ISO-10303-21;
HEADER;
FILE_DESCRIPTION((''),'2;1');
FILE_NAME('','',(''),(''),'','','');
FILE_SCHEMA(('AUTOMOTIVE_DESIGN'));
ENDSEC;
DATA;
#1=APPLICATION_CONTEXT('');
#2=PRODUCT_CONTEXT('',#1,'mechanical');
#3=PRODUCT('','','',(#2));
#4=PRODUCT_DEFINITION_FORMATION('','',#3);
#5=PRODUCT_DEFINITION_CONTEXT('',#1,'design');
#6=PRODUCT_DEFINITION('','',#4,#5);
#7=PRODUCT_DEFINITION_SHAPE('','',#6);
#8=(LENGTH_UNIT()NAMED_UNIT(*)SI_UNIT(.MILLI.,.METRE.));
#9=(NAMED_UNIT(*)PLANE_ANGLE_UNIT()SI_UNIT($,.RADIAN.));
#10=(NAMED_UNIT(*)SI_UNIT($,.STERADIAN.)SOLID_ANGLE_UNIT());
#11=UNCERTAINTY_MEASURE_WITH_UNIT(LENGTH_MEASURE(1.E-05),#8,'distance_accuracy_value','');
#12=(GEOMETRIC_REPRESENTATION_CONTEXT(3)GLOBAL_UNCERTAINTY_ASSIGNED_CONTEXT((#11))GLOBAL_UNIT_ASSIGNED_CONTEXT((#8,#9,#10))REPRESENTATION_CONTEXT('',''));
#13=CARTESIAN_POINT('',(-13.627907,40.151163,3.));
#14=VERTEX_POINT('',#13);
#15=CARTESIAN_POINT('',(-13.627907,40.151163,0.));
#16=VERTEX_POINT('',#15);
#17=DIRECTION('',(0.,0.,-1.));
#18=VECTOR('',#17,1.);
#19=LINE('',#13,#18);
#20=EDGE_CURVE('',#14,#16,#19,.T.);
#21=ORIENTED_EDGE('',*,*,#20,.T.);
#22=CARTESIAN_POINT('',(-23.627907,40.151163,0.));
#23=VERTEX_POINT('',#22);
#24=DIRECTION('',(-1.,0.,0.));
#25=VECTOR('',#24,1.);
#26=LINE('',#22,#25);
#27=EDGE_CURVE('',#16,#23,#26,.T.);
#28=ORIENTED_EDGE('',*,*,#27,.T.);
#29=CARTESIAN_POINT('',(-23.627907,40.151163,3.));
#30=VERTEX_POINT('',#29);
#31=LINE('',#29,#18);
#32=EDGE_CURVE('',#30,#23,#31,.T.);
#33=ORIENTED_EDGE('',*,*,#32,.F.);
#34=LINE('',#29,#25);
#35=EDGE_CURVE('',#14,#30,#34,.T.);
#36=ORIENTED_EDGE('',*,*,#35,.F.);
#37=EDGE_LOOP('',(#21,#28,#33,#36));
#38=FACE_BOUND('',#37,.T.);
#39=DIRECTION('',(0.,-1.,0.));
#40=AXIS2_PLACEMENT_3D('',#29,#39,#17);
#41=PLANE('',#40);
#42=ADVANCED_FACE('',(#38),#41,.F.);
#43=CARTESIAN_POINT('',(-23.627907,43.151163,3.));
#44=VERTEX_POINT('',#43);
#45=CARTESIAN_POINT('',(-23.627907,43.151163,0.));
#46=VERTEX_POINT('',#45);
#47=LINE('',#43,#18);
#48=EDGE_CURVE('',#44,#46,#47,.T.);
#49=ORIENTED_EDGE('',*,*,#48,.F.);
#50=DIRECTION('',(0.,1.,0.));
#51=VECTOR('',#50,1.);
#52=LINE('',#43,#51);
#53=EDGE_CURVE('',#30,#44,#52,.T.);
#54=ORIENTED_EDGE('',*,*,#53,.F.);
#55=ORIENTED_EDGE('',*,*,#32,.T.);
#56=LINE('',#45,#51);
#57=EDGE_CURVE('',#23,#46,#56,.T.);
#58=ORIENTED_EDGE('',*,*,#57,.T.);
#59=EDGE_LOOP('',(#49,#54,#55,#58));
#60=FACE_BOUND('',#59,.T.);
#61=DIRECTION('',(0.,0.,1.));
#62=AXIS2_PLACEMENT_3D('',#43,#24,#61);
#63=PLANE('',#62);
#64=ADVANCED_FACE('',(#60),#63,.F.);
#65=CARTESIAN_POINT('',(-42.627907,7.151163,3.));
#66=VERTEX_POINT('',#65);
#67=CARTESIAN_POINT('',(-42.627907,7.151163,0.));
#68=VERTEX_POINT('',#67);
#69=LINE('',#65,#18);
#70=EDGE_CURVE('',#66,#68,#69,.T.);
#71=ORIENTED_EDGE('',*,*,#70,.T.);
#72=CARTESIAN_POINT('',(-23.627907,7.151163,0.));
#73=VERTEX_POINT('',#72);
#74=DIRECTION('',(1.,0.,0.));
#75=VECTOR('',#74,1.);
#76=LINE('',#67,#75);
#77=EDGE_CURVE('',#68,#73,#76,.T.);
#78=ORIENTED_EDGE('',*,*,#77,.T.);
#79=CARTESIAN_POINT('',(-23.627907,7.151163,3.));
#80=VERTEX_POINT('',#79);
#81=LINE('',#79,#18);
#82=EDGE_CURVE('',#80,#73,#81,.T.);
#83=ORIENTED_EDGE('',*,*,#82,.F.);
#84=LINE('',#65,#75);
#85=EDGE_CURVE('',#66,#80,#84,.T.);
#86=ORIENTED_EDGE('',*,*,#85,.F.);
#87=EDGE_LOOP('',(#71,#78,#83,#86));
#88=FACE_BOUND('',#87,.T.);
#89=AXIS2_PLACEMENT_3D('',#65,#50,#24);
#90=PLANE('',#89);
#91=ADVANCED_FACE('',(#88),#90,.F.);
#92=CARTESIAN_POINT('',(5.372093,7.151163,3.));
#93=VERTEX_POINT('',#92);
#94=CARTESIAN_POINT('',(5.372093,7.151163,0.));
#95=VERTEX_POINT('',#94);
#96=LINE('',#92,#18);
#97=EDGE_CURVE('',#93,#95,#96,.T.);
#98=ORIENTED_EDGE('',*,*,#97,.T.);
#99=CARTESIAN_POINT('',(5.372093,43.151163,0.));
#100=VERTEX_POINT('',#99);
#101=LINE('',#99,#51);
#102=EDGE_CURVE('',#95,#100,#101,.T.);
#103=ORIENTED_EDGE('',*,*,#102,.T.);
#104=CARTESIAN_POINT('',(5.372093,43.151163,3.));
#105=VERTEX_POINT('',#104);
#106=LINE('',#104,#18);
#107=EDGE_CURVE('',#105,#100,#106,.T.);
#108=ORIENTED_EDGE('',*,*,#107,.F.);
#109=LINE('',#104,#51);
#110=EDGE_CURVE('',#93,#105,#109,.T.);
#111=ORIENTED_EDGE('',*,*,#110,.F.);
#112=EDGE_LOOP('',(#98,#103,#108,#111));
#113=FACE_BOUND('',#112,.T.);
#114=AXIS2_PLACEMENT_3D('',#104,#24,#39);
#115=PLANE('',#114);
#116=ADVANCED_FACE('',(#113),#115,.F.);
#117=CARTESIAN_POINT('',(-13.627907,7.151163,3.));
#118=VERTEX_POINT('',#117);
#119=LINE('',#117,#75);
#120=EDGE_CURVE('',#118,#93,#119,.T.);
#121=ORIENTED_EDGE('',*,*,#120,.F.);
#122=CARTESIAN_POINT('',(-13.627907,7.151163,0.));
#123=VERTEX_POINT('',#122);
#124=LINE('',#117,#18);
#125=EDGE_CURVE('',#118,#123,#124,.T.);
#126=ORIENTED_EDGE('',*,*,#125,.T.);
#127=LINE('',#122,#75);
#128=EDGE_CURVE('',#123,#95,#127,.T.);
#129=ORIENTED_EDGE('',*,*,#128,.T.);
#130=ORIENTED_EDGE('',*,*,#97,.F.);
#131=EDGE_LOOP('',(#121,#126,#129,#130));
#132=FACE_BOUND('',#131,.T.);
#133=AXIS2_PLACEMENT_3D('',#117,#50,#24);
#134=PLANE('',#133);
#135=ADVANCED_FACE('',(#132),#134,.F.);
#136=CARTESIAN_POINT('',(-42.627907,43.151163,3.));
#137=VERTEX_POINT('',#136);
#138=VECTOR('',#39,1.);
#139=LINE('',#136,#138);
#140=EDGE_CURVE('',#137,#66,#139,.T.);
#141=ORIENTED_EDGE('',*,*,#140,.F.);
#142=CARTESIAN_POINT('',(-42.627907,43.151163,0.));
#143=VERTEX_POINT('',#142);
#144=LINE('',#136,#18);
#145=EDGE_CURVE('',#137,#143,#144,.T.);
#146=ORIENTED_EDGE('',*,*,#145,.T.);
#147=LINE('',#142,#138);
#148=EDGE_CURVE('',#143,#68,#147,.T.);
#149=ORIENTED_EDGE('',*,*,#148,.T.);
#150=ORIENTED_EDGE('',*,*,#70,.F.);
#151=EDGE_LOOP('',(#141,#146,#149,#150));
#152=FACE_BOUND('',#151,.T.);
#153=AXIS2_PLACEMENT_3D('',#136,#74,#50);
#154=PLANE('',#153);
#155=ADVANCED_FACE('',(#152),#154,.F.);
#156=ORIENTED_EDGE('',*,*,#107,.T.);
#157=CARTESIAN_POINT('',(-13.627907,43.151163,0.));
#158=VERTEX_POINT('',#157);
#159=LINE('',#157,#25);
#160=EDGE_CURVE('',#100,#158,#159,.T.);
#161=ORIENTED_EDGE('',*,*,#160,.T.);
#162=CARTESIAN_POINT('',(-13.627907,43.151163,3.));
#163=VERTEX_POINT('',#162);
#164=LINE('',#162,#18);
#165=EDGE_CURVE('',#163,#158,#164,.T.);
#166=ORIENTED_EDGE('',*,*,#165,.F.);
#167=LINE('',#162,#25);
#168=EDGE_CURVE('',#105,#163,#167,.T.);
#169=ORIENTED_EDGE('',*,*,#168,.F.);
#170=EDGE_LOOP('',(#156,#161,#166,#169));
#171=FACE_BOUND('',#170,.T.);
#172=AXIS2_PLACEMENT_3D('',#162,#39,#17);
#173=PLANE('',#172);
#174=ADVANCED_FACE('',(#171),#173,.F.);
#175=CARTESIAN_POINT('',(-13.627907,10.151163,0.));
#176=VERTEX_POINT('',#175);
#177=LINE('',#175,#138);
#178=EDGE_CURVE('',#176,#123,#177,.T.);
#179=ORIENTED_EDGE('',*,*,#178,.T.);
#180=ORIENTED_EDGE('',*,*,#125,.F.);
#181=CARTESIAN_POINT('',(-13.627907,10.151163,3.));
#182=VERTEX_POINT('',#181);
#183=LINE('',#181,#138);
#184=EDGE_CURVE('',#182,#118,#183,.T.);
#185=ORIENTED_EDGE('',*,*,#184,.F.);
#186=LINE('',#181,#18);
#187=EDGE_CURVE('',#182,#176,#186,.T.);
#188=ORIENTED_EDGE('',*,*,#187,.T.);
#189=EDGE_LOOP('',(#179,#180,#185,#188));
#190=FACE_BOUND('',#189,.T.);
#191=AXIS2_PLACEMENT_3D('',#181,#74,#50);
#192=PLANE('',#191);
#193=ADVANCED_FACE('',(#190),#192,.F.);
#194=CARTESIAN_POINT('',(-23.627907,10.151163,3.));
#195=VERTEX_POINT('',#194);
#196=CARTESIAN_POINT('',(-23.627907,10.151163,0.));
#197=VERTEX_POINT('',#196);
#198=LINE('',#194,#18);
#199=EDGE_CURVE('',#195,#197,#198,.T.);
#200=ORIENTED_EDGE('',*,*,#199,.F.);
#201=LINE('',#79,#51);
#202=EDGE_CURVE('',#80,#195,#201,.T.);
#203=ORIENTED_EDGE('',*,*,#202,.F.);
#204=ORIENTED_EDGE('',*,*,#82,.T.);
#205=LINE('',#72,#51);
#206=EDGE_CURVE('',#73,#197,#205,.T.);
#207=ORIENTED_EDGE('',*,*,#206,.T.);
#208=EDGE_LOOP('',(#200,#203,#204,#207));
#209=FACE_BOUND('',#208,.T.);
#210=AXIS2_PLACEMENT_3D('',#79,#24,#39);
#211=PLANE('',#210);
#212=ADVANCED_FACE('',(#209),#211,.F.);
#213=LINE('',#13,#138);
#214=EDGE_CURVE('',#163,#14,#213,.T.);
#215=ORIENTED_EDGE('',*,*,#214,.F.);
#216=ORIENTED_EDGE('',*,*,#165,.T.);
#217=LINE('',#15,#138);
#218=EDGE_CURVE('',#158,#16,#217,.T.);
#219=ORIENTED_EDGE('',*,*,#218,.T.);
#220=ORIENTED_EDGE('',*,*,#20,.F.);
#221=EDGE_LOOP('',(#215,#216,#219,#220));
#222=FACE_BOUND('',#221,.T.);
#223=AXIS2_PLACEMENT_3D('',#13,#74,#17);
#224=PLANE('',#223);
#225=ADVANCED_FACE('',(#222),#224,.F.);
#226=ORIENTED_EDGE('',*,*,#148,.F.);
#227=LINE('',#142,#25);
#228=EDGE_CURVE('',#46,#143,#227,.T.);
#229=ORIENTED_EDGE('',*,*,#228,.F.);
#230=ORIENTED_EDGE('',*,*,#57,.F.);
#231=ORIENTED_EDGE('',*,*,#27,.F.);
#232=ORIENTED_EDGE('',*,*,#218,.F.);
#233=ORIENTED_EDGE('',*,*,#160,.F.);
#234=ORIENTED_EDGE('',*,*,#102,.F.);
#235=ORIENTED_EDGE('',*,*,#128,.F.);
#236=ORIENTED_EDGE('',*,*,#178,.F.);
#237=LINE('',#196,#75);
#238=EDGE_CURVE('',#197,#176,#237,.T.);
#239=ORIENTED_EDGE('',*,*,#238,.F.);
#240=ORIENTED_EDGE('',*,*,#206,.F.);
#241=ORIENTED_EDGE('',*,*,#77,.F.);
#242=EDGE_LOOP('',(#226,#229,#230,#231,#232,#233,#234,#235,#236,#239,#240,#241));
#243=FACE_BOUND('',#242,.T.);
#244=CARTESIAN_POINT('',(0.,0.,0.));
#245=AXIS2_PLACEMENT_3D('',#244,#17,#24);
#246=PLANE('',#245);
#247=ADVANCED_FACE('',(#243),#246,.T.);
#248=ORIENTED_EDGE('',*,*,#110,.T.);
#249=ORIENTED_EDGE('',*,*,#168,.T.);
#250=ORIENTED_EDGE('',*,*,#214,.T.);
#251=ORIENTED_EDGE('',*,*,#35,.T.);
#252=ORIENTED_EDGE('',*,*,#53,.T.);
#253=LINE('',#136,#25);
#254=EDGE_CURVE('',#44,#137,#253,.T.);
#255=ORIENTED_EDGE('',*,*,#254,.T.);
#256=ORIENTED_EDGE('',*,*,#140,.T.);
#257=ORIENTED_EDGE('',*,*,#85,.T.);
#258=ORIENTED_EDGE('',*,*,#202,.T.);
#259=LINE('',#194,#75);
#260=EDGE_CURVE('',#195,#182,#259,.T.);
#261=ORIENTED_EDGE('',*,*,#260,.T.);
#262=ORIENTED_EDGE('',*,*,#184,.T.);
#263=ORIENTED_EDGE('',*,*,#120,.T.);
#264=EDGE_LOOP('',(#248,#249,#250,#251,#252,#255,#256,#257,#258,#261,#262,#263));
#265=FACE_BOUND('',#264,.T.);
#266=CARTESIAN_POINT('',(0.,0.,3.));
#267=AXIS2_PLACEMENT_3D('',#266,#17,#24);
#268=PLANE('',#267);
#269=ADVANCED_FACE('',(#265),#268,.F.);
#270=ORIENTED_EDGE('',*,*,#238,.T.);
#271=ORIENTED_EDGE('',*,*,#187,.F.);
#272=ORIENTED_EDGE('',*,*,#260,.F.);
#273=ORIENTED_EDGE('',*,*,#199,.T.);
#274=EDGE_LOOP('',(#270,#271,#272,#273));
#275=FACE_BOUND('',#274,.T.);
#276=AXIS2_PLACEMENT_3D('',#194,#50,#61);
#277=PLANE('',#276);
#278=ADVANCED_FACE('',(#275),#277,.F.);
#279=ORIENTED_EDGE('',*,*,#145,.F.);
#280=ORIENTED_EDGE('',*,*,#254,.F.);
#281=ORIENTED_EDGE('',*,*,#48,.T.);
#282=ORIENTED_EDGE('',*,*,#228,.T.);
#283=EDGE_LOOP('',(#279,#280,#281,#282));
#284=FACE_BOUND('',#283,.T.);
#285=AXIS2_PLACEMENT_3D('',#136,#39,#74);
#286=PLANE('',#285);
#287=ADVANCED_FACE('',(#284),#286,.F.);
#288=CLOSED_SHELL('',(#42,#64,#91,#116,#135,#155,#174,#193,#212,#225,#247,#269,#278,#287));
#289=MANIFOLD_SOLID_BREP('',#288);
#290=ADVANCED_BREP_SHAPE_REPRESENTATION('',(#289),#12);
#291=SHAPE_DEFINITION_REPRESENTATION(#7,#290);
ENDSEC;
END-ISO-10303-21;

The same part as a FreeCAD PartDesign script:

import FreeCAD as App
import Part
import Sketcher
from FreeCAD import Vector

doc = App.newDocument("Part")
body = doc.addObject("PartDesign::Body", "Body")

sketch1 = body.newObject("Sketcher::SketchObject", "Sketch")
sketch1.AttachmentSupport = (doc.getObject("XY_Plane"), [""])
sketch1.MapMode = "FlatFace"
sketch1.addGeometry([
    Part.LineSegment(Vector(-23.6, 40.2, 0), Vector(-23.6, 43.2, 0)),
    Part.LineSegment(Vector(-23.6, 43.2, 0), Vector(-42.6, 43.2, 0)),
    Part.LineSegment(Vector(-42.6, 43.2, 0), Vector(-42.6, 7.2, 0)),
    Part.LineSegment(Vector(-42.6, 7.2, 0), Vector(-23.6, 7.2, 0)),
    Part.LineSegment(Vector(-23.6, 7.2, 0), Vector(-23.6, 10.2, 0)),
    Part.LineSegment(Vector(-23.6, 10.2, 0), Vector(-13.6, 10.2, 0)),
    Part.LineSegment(Vector(-13.6, 10.2, 0), Vector(-13.6, 7.2, 0)),
    Part.LineSegment(Vector(-13.6, 7.2, 0), Vector(5.4, 7.2, 0)),
    Part.LineSegment(Vector(5.4, 7.2, 0), Vector(5.4, 43.2, 0)),
    Part.LineSegment(Vector(5.4, 43.2, 0), Vector(-13.6, 43.2, 0)),
    Part.LineSegment(Vector(-13.6, 43.2, 0), Vector(-13.6, 40.2, 0)),
    Part.LineSegment(Vector(-13.6, 40.2, 0), Vector(-23.6, 40.2, 0)),
], False)
sketch1.addConstraint([
    Sketcher.Constraint("Coincident", 0, 2, 1, 1),
    Sketcher.Constraint("Coincident", 1, 2, 2, 1),
    Sketcher.Constraint("Coincident", 2, 2, 3, 1),
    Sketcher.Constraint("Coincident", 3, 2, 4, 1),
    Sketcher.Constraint("Coincident", 4, 2, 5, 1),
    Sketcher.Constraint("Coincident", 5, 2, 6, 1),
    Sketcher.Constraint("Coincident", 6, 2, 7, 1),
    Sketcher.Constraint("Coincident", 7, 2, 8, 1),
    Sketcher.Constraint("Coincident", 8, 2, 9, 1),
    Sketcher.Constraint("Coincident", 9, 2, 10, 1),
    Sketcher.Constraint("Coincident", 10, 2, 11, 1),
    Sketcher.Constraint("Coincident", 11, 2, 0, 1),
    Sketcher.Constraint("Vertical", 0),
    Sketcher.Constraint("Horizontal", 1),
    Sketcher.Constraint("Vertical", 2),
    Sketcher.Constraint("Horizontal", 3),
    Sketcher.Constraint("Vertical", 4),
    Sketcher.Constraint("Horizontal", 5),
    Sketcher.Constraint("Vertical", 6),
    Sketcher.Constraint("Horizontal", 7),
    Sketcher.Constraint("Vertical", 8),
    Sketcher.Constraint("Horizontal", 9),
    Sketcher.Constraint("Vertical", 10),
    Sketcher.Constraint("Horizontal", 11),
    Sketcher.Constraint("Horizontal", 3, 2, 6, 2),
    Sketcher.Constraint("Horizontal", 1, 2, 8, 2),
    Sketcher.Constraint("Vertical", 0, 2, 3, 2),
    Sketcher.Constraint("Vertical", 6, 2, 9, 2),
    Sketcher.Constraint("Equal", 3, 7),
    Sketcher.Constraint("Equal", 0, 4),
    Sketcher.Constraint("DistanceX", 1, 2, 1, 1, 19.0),
    Sketcher.Constraint("DistanceX", 5, 1, 5, 2, 10.0),
    Sketcher.Constraint("DistanceY", 0, 1, 0, 2, 3.0),
    Sketcher.Constraint("DistanceY", 2, 2, 2, 1, 36.0),
    Sketcher.Constraint("DistanceX", 0, 2, -1, 1, 23.627907),
    Sketcher.Constraint("DistanceY", -1, 1, 0, 2, 43.151163),
])
pad1 = body.newObject("PartDesign::Pad", "Pad")
pad1.Profile = sketch1
pad1.Length = 3

doc.recompute()
